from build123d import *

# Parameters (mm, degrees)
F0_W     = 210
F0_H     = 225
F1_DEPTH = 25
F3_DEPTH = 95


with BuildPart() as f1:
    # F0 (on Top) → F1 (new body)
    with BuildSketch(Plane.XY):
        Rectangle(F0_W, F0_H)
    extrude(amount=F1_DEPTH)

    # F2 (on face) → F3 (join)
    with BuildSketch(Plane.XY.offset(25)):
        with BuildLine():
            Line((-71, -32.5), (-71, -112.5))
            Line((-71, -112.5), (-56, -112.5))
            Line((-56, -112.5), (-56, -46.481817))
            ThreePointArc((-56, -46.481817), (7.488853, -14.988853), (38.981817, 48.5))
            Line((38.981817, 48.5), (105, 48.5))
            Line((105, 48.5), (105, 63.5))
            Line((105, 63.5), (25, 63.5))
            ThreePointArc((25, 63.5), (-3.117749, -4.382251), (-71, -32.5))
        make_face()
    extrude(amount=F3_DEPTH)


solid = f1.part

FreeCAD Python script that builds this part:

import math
import FreeCAD as App
import Part
import Sketcher

V = App.Vector

doc = App.newDocument("Part")
body = doc.addObject("PartDesign::Body", "Body")

sketch1 = body.newObject("Sketcher::SketchObject", "Sketch")
sketch1.AttachmentSupport = (doc.getObject("XY_Plane"), [""])
sketch1.MapMode = "FlatFace"
sketch1.addGeometry([
    Part.LineSegment(V(-105, 112.5, 0), V(-105, -112.5, 0)),
    Part.LineSegment(V(-105, -112.5, 0), V(105, -112.5, 0)),
    Part.LineSegment(V(105, -112.5, 0), V(105, 112.5, 0)),
    Part.LineSegment(V(105, 112.5, 0), V(-105, 112.5, 0)),
], False)
sketch1.addConstraint([
    Sketcher.Constraint("Coincident", 0, 2, 1, 1),
    Sketcher.Constraint("Coincident", 1, 2, 2, 1),
    Sketcher.Constraint("Coincident", 2, 2, 3, 1),
    Sketcher.Constraint("Coincident", 3, 2, 0, 1),
    Sketcher.Constraint("Vertical", 0),
    Sketcher.Constraint("Horizontal", 1),
    Sketcher.Constraint("Vertical", 2),
    Sketcher.Constraint("Horizontal", 3),
    Sketcher.Constraint("Symmetric", 0, 2, 2, 2, -1, 1),
    Sketcher.Constraint("DistanceX", 1, 1, 1, 2, 210.0),
    Sketcher.Constraint("DistanceY", 0, 2, 0, 1, 225.0),
])
pad1 = body.newObject("PartDesign::Pad", "Pad")
pad1.Profile = sketch1
pad1.Length = 25

sketch2 = body.newObject("Sketcher::SketchObject", "Sketch001")
sketch2.AttachmentSupport = (doc.getObject("XY_Plane"), [""])
sketch2.MapMode = "FlatFace"
sketch2.AttachmentOffset = App.Placement(V(0, 0, 25), App.Rotation())
sketch2.addGeometry([
    Part.LineSegment(V(-71, -32.5, 0), V(-71, -112.5, 0)),
    Part.LineSegment(V(-71, -112.5, 0), V(-56, -112.5, 0)),
    Part.LineSegment(V(-56, -112.5, 0), V(-56, -46.481817, 0)),
    Part.ArcOfCircle(Part.Circle(V(-71, 63.5, 0), V(0, 0, 1), 111), math.radians(-82.233566), math.radians(-7.766434)),
    Part.LineSegment(V(38.981817, 48.5, 0), V(105, 48.5, 0)),
    Part.LineSegment(V(105, 48.5, 0), V(105, 63.5, 0)),
    Part.LineSegment(V(105, 63.5, 0), V(25, 63.5, 0)),
    Part.ArcOfCircle(Part.Circle(V(-71, 63.5, 0), V(0, 0, 1), 96), math.radians(-90), math.radians(0)),
], False)
sketch2.addConstraint([
    Sketcher.Constraint("Coincident", 0, 2, 1, 1),
    Sketcher.Constraint("Coincident", 1, 2, 2, 1),
    Sketcher.Constraint("Coincident", 2, 2, 3, 1),
    Sketcher.Constraint("Coincident", 3, 2, 4, 1),
    Sketcher.Constraint("Coincident", 4, 2, 5, 1),
    Sketcher.Constraint("Coincident", 5, 2, 6, 1),
    Sketcher.Constraint("Coincident", 6, 2, 7, 2),
    Sketcher.Constraint("Coincident", 7, 1, 0, 1),
    Sketcher.Constraint("Vertical", 0),
    Sketcher.Constraint("Horizontal", 1),
    Sketcher.Constraint("Vertical", 2),
    Sketcher.Constraint("Horizontal", 4),
    Sketcher.Constraint("Vertical", 5),
    Sketcher.Constraint("Horizontal", 6),
    Sketcher.Constraint("Coincident", 7, 3, 3, 3),
    Sketcher.Constraint("Horizontal", 7, 3, 5, 2),
    Sketcher.Constraint("Vertical", 7, 3, 0, 2),
    Sketcher.Constraint("Equal", 6, 0),
    Sketcher.Constraint("Equal", 4, 2),
    Sketcher.Constraint("Radius", 3, 111.0),
    Sketcher.Constraint("Radius", 7, 96.0),
    Sketcher.Constraint("DistanceX", 1, 1, 1, 2, 15.0),
    Sketcher.Constraint("DistanceX", 6, 2, 6, 1, 80.0),
    Sketcher.Constraint("DistanceX", 3, 3, -1, 1, 71.0),
    Sketcher.Constraint("DistanceY", -1, 1, 3, 3, 63.5),
])
pad2 = body.newObject("PartDesign::Pad", "Pad001")
pad2.Profile = sketch2
pad2.Length = 95

doc.recompute()
